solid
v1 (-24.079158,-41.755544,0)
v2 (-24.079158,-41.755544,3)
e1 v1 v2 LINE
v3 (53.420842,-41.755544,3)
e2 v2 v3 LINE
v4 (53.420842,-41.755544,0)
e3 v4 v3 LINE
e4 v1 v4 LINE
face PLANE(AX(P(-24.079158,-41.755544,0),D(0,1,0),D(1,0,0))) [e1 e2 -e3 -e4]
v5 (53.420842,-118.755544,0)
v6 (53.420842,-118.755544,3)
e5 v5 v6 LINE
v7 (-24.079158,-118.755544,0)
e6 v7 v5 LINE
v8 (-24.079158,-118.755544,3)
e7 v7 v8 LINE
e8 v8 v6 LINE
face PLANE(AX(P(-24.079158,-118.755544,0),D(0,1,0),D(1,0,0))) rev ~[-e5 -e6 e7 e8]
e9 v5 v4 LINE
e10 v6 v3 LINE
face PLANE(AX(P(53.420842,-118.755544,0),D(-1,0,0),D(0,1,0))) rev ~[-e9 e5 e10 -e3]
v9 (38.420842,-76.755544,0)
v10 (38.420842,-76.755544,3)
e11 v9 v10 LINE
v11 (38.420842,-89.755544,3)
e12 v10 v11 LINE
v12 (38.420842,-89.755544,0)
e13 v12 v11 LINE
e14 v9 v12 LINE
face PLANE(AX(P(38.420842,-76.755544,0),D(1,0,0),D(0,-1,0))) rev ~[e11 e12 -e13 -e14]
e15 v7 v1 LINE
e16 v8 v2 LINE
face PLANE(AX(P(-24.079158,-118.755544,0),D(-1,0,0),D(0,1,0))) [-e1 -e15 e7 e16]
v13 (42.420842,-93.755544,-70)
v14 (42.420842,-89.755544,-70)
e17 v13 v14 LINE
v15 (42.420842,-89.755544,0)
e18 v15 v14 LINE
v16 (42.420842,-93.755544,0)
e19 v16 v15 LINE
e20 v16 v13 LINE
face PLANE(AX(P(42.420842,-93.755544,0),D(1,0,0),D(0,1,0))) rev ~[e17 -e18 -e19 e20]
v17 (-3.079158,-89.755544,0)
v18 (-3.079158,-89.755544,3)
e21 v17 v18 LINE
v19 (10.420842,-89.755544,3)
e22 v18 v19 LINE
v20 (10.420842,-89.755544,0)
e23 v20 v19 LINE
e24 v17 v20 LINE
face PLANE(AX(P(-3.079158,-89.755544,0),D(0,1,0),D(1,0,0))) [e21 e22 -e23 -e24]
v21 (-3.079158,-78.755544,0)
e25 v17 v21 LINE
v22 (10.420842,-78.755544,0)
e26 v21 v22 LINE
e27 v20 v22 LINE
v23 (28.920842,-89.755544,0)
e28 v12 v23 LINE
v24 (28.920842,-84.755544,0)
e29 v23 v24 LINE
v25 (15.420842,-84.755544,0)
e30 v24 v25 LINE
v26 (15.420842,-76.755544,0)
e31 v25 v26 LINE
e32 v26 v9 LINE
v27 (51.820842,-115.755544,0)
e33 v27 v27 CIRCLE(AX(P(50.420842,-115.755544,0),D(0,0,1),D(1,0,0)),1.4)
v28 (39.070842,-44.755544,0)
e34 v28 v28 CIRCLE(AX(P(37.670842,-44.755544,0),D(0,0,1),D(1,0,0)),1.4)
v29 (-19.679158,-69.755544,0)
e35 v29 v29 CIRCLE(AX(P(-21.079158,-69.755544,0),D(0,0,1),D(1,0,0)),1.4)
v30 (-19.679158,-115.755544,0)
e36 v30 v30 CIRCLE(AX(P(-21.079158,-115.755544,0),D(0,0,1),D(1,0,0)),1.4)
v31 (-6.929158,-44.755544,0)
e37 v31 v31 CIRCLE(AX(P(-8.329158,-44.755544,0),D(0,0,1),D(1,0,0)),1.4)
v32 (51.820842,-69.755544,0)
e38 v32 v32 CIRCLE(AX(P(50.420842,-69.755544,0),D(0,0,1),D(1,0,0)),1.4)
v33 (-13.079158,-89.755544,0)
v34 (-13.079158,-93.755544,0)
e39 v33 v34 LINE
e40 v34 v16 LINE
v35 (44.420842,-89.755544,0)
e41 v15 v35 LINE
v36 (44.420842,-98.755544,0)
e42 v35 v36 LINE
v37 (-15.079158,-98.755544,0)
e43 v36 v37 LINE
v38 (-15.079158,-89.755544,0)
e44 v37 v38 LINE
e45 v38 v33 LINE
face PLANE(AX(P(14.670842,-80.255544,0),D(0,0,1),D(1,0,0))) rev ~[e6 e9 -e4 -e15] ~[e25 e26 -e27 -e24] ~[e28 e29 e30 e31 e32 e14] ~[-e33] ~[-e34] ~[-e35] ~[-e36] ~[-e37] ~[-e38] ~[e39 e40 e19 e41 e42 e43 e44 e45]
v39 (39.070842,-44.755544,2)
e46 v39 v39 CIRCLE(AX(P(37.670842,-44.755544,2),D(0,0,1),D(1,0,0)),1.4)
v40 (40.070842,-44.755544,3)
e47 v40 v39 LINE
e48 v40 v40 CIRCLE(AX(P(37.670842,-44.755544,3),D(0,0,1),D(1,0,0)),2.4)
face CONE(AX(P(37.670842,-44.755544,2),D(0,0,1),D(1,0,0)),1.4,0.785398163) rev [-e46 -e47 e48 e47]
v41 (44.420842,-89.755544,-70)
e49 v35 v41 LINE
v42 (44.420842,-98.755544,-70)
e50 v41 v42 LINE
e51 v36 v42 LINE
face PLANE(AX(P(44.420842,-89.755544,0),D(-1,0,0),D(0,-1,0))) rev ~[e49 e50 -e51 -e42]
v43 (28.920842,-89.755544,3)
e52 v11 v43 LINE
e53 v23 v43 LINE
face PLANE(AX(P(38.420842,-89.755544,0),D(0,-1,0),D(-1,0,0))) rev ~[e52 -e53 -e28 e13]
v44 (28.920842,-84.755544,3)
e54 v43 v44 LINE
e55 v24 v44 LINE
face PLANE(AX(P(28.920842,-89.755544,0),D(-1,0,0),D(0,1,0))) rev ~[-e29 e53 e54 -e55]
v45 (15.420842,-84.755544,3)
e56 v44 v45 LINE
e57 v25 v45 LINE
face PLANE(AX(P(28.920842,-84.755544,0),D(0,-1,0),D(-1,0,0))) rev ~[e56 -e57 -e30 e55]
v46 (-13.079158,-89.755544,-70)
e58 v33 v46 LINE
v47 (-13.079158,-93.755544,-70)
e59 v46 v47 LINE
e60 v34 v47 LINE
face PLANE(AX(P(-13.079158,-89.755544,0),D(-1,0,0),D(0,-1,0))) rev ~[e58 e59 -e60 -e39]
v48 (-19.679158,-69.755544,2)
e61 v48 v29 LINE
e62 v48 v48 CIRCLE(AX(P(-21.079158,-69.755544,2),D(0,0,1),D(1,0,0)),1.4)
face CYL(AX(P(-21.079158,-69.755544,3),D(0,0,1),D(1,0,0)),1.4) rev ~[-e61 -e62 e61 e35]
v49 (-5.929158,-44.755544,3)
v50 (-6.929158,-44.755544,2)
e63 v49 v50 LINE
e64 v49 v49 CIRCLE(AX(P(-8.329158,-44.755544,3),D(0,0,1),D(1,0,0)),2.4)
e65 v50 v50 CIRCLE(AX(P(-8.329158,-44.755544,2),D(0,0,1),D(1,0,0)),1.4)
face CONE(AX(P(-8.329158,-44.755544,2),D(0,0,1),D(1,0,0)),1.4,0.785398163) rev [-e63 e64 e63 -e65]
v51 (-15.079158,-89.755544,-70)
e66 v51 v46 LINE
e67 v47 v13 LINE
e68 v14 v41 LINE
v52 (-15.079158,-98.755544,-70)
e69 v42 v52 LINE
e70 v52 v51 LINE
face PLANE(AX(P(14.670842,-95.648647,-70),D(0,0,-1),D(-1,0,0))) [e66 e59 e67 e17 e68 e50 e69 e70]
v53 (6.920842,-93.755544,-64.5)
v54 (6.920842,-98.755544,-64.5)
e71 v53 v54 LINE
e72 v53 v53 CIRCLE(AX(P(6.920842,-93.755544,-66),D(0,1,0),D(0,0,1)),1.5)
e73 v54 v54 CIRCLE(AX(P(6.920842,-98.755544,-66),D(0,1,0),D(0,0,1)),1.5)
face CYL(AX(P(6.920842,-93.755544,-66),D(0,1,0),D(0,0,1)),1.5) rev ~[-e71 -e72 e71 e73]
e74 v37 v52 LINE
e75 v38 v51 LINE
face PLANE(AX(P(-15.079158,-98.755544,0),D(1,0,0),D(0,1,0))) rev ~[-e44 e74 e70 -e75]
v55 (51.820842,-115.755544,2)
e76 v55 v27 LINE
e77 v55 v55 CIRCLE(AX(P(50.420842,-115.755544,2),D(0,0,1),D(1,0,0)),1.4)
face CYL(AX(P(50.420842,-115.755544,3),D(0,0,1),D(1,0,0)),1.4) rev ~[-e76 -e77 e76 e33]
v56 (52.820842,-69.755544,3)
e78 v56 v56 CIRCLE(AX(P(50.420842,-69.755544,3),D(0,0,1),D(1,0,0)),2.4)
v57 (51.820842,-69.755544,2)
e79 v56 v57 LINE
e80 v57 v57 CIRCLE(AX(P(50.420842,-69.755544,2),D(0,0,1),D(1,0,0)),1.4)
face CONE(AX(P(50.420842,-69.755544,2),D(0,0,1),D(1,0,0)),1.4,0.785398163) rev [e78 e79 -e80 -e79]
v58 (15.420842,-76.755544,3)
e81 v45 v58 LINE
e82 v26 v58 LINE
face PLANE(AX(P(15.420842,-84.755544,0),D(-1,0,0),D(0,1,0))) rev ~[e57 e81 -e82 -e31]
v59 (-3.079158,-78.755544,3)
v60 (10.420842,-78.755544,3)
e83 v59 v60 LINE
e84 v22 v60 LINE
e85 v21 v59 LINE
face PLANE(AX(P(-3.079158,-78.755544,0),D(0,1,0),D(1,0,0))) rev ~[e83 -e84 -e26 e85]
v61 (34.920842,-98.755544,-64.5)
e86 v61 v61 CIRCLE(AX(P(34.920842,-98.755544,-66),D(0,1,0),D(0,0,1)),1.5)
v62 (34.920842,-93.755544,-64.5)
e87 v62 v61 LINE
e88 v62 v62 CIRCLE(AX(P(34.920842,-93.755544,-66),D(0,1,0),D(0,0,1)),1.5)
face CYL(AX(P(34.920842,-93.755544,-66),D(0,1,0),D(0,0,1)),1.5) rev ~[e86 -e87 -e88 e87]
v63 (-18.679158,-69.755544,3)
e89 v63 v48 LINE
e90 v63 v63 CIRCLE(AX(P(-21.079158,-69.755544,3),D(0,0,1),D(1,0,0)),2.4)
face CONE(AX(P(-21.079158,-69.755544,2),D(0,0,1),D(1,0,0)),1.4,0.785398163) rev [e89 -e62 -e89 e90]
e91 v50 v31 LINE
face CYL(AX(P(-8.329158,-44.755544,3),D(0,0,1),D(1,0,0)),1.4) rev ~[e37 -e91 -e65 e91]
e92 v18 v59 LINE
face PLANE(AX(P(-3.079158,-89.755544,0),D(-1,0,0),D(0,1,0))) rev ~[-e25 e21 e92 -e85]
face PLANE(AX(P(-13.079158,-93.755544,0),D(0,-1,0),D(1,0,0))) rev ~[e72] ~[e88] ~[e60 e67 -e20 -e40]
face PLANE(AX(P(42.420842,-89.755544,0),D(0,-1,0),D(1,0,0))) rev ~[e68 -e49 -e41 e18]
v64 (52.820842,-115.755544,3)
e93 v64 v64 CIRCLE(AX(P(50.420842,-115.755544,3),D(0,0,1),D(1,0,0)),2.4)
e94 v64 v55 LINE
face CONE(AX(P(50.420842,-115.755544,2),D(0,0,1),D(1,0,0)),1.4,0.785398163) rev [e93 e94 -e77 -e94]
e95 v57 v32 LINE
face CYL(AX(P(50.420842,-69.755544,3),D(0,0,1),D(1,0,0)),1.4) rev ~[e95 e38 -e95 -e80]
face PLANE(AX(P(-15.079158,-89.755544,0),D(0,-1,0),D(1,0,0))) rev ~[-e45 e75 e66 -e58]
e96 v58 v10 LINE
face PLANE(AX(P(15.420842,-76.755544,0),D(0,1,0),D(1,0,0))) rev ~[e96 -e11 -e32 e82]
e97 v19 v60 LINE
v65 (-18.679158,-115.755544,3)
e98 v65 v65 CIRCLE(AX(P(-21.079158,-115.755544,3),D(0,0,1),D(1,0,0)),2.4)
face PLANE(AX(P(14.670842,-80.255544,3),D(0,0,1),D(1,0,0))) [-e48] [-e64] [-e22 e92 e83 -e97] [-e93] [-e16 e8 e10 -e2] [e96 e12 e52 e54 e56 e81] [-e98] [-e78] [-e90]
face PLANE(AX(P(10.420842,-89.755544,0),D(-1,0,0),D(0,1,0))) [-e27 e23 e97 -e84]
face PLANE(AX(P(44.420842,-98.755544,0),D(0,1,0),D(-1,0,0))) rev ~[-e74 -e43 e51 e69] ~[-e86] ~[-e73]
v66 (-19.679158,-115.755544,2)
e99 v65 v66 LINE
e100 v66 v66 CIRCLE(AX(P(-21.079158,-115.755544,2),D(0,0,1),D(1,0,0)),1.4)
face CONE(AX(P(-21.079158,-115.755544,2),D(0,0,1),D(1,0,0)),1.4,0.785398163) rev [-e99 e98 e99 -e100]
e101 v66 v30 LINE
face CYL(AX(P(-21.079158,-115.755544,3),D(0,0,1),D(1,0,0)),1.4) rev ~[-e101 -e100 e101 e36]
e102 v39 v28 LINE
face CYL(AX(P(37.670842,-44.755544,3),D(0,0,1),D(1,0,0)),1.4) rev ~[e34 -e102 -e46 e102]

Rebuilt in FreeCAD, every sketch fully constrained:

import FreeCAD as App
import Part
import Sketcher
from FreeCAD import Vector
Q = App.Units.Quantity


def edges_at(feature, points):
    """Names of the edges that pass closest to the given points."""
    edges = feature.Shape.Edges
    near = lambda p: min(range(len(edges)), key=lambda i: edges[i].distToShape(Part.Vertex(*p))[0])
    return sorted({f"Edge{near(p) + 1}" for p in points})

doc = App.newDocument("Part")
params = doc.addObject("Spreadsheet::Sheet", "Params")
for row, (alias, value) in enumerate([
    ("sketch1_width", "23 mm"),
    ("sketch1_height", "77 mm"),
    ("sketch1_height2", "11 mm"),
    ("sketch1_height3", "8 mm"),
    ("sketch1_height4", "13 mm"),
    ("pad1_length", "3 mm"),
    ("sketch2_width", "2 mm"),
    ("sketch2_height", "4 mm"),
    ("sketch2_height2", "9 mm"),
    ("sketch2_width2", "55.5 mm"),
    ("pad2_length", "70 mm"),
    ("sketch3_diameter", "2.8 mm"),
    ("pocket1_length", "3 mm"),
    ("sketch4_diameter", "2.8 mm"),
    ("pocket2_length", "3 mm"),
    ("sketch5_diameter", "3 mm"),
    ("pocket3_length", "5 mm"),
    ("chamfer_size", "1 mm"),
    ("chamfer2_size", "1 mm"),
    ("chamfer3_size", "1 mm"),
], start=1):
    params.set(f"A{row}", alias)
    params.set(f"B{row}", "=" + value)
    params.setAlias(f"B{row}", alias)

body = doc.addObject("PartDesign::Body", "Body")

sketch1 = body.newObject("Sketcher::SketchObject", "Sketch")
sketch1.AttachmentSupport = (doc.getObject("XY_Plane"), [""])
sketch1.MapMode = "FlatFace"
sketch1.addGeometry(Part.LineSegment(Vector(-24, -42, 0), Vector(-24, -119, 0)), False)
sketch1.addGeometry(Part.LineSegment(Vector(-24, -119, 0), Vector(53, -119, 0)), False)
sketch1.addGeometry(Part.LineSegment(Vector(53, -119, 0), Vector(53, -42, 0)), False)
sketch1.addGeometry(Part.LineSegment(Vector(53, -42, 0), Vector(-24, -42, 0)), False)
sketch1.addGeometry(Part.LineSegment(Vector(10, -90, 0), Vector(-3, -90, 0)), False)
sketch1.addGeometry(Part.LineSegment(Vector(-3, -90, 0), Vector(-3, -79, 0)), False)
sketch1.addGeometry(Part.LineSegment(Vector(-3, -79, 0), Vector(10, -79, 0)), False)
sketch1.addGeometry(Part.LineSegment(Vector(10, -79, 0), Vector(10, -90, 0)), False)
sketch1.addGeometry(Part.LineSegment(Vector(15, -85, 0), Vector(15, -77, 0)), False)
sketch1.addGeometry(Part.LineSegment(Vector(15, -77, 0), Vector(38, -77, 0)), False)
sketch1.addGeometry(Part.LineSegment(Vector(38, -77, 0), Vector(38, -90, 0)), False)
sketch1.addGeometry(Part.LineSegment(Vector(38, -90, 0), Vector(29, -90, 0)), False)
sketch1.addGeometry(Part.LineSegment(Vector(29, -90, 0), Vector(29, -85, 0)), False)
sketch1.addGeometry(Part.LineSegment(Vector(29, -85, 0), Vector(15, -85, 0)), False)
sketch1.addConstraint(Sketcher.Constraint("Coincident", 0, 2, 1, 1))
sketch1.addConstraint(Sketcher.Constraint("Coincident", 1, 2, 2, 1))
sketch1.addConstraint(Sketcher.Constraint("Coincident", 2, 2, 3, 1))
sketch1.addConstraint(Sketcher.Constraint("Coincident", 3, 2, 0, 1))
sketch1.addConstraint(Sketcher.Constraint("Coincident", 4, 2, 5, 1))
sketch1.addConstraint(Sketcher.Constraint("Coincident", 5, 2, 6, 1))
sketch1.addConstraint(Sketcher.Constraint("Coincident", 6, 2, 7, 1))
sketch1.addConstraint(Sketcher.Constraint("Coincident", 7, 2, 4, 1))
sketch1.addConstraint(Sketcher.Constraint("Coincident", 8, 2, 9, 1))
sketch1.addConstraint(Sketcher.Constraint("Coincident", 9, 2, 10, 1))
sketch1.addConstraint(Sketcher.Constraint("Coincident", 10, 2, 11, 1))
sketch1.addConstraint(Sketcher.Constraint("Coincident", 11, 2, 12, 1))
sketch1.addConstraint(Sketcher.Constraint("Coincident", 12, 2, 13, 1))
sketch1.addConstraint(Sketcher.Constraint("Coincident", 13, 2, 8, 1))
sketch1.addConstraint(Sketcher.Constraint("Vertical", 0))
sketch1.addConstraint(Sketcher.Constraint("Horizontal", 1))
sketch1.addConstraint(Sketcher.Constraint("Vertical", 2))
sketch1.addConstraint(Sketcher.Constraint("Horizontal", 3))
sketch1.addConstraint(Sketcher.Constraint("Horizontal", 4))
sketch1.addConstraint(Sketcher.Constraint("Vertical", 5))
sketch1.addConstraint(Sketcher.Constraint("Horizontal", 6))
sketch1.addConstraint(Sketcher.Constraint("Vertical", 7))
sketch1.addConstraint(Sketcher.Constraint("Vertical", 8))
sketch1.addConstraint(Sketcher.Constraint("Horizontal", 9))
sketch1.addConstraint(Sketcher.Constraint("Vertical", 10))
sketch1.addConstraint(Sketcher.Constraint("Horizontal", 11))
sketch1.addConstraint(Sketcher.Constraint("Vertical", 12))
sketch1.addConstraint(Sketcher.Constraint("Horizontal", 13))
sketch1.addConstraint(Sketcher.Constraint("Horizontal", 7, 2, 10, 2))
sketch1.addConstraint(Sketcher.Constraint("Equal", 6, 13))
sketch1.addConstraint(Sketcher.Constraint("DistanceX", 9, 1, 9, 2, Q("23 mm")))
sketch1.addConstraint(Sketcher.Constraint("DistanceY", 0, 2, 0, 1, Q("77 mm")))
sketch1.addConstraint(Sketcher.Constraint("DistanceY", 5, 1, 5, 2, Q("11 mm")))
sketch1.addConstraint(Sketcher.Constraint("DistanceY", 8, 1, 8, 2, Q("8 mm")))
sketch1.addConstraint(Sketcher.Constraint("DistanceY", 10, 2, 10, 1, Q("13 mm")))
sketch1.addConstraint(Sketcher.Constraint("DistanceX", 1, 1, 1, 2, Q("77.5 mm")))
sketch1.addConstraint(Sketcher.Constraint("DistanceX", 4, 2, 4, 1, Q("13.5 mm")))
sketch1.addConstraint(Sketcher.Constraint("DistanceX", 0, 2, 4, 2, Q("21 mm")))
sketch1.addConstraint(Sketcher.Constraint("DistanceY", 0, 2, 4, 2, Q("29 mm")))
sketch1.addConstraint(Sketcher.Constraint("DistanceX", 6, 2, 8, 2, Q("5 mm")))
sketch1.addConstraint(Sketcher.Constraint("DistanceX", 0, 2, -1, 1, Q("24.079158 mm")))
sketch1.addConstraint(Sketcher.Constraint("DistanceY", 0, 2, -1, 1, Q("118.755544 mm")))
sketch1.setExpression("Constraints[30]", "Params.sketch1_width")
sketch1.setExpression("Constraints[31]", "Params.sketch1_height")
sketch1.setExpression("Constraints[32]", "Params.sketch1_height2")
sketch1.setExpression("Constraints[33]", "Params.sketch1_height3")
sketch1.setExpression("Constraints[34]", "Params.sketch1_height4")
pad1 = body.newObject("PartDesign::Pad", "Pad")
pad1.Profile = sketch1
pad1.setExpression("Length", "Params.pad1_length")

sketch2 = body.newObject("Sketcher::SketchObject", "Sketch001")
sketch2.AttachmentSupport = (doc.getObject("XY_Plane"), [""])
sketch2.MapMode = "FlatFace"
sketch2.addGeometry(Part.LineSegment(Vector(44.4, -89.8, 0), Vector(42.4, -89.8, 0)), False)
sketch2.addGeometry(Part.LineSegment(Vector(42.4, -89.8, 0), Vector(42.4, -93.8, 0)), False)
sketch2.addGeometry(Part.LineSegment(Vector(42.4, -93.8, 0), Vector(-13.1, -93.8, 0)), False)
sketch2.addGeometry(Part.LineSegment(Vector(-13.1, -93.8, 0), Vector(-13.1, -89.8, 0)), False)
sketch2.addGeometry(Part.LineSegment(Vector(-13.1, -89.8, 0), Vector(-15.1, -89.8, 0)), False)
sketch2.addGeometry(Part.LineSegment(Vector(-15.1, -89.8, 0), Vector(-15.1, -98.8, 0)), False)
sketch2.addGeometry(Part.LineSegment(Vector(-15.1, -98.8, 0), Vector(44.4, -98.8, 0)), False)
sketch2.addGeometry(Part.LineSegment(Vector(44.4, -98.8, 0), Vector(44.4, -89.8, 0)), False)
sketch2.addConstraint(Sketcher.Constraint("Coincident", 0, 2, 1, 1))
sketch2.addConstraint(Sketcher.Constraint("Coincident", 1, 2, 2, 1))
sketch2.addConstraint(Sketcher.Constraint("Coincident", 2, 2, 3, 1))
sketch2.addConstraint(Sketcher.Constraint("Coincident", 3, 2, 4, 1))
sketch2.addConstraint(Sketcher.Constraint("Coincident", 4, 2, 5, 1))
sketch2.addConstraint(Sketcher.Constraint("Coincident", 5, 2, 6, 1))
sketch2.addConstraint(Sketcher.Constraint("Coincident", 6, 2, 7, 1))
sketch2.addConstraint(Sketcher.Constraint("Coincident", 7, 2, 0, 1))
sketch2.addConstraint(Sketcher.Constraint("Horizontal", 0))
sketch2.addConstraint(Sketcher.Constraint("Vertical", 1))
sketch2.addConstraint(Sketcher.Constraint("Horizontal", 2))
sketch2.addConstraint(Sketcher.Constraint("Vertical", 3))
sketch2.addConstraint(Sketcher.Constraint("Horizontal", 4))
sketch2.addConstraint(Sketcher.Constraint("Vertical", 5))
sketch2.addConstraint(Sketcher.Constraint("Horizontal", 6))
sketch2.addConstraint(Sketcher.Constraint("Vertical", 7))
sketch2.addConstraint(Sketcher.Constraint("Horizontal", 0, 2, 3, 2))
sketch2.addConstraint(Sketcher.Constraint("Equal", 0, 4))
sketch2.addConstraint(Sketcher.Constraint("DistanceX", 0, 2, 0, 1, Q("2 mm")))
sketch2.addConstraint(Sketcher.Constraint("DistanceY", 1, 2, 1, 1, Q("4 mm")))
sketch2.addConstraint(Sketcher.Constraint("DistanceY", 5, 2, 5, 1, Q("9 mm")))
sketch2.addConstraint(Sketcher.Constraint("DistanceX", 2, 2, 2, 1, Q("55.5 mm")))
sketch2.addConstraint(Sketcher.Constraint("DistanceX", -1, 1, 0, 2, Q("42.420842 mm")))
sketch2.addConstraint(Sketcher.Constraint("DistanceY", 0, 2, -1, 1, Q("89.755544 mm")))
sketch2.setExpression("Constraints[18]", "Params.sketch2_width")
sketch2.setExpression("Constraints[19]", "Params.sketch2_height")
sketch2.setExpression("Constraints[20]", "Params.sketch2_height2")
sketch2.setExpression("Constraints[21]", "Params.sketch2_width2")
pad2 = body.newObject("PartDesign::Pad", "Pad001")
pad2.Profile = sketch2
pad2.setExpression("Length", "Params.pad2_length")
pad2.Reversed = True

sketch3 = body.newObject("Sketcher::SketchObject", "Sketch002")
sketch3.AttachmentSupport = (doc.getObject("XY_Plane"), [""])
sketch3.MapMode = "FlatFace"
sketch3.AttachmentOffset = App.Placement(Vector(0, 0, 3), App.Rotation())
sketch3.addGeometry(Part.Circle(Vector(-8.3, -44.8, 0), Vector(0, 0, 1), 1.4), False)
sketch3.addGeometry(Part.Circle(Vector(37.7, -44.8, 0), Vector(0, 0, 1), 1.4), False)
sketch3.addConstraint(Sketcher.Constraint("Equal", 0, 1))
sketch3.addConstraint(Sketcher.Constraint("Horizontal", 0, 3, 1, 3))
sketch3.addConstraint(Sketcher.Constraint("Diameter", 0, Q("2.8 mm")))
sketch3.addConstraint(Sketcher.Constraint("DistanceX", 0, 3, 1, 3, Q("46 mm")))
sketch3.addConstraint(Sketcher.Constraint("DistanceX", 0, 3, -1, 1, Q("8.329158 mm")))
sketch3.addConstraint(Sketcher.Constraint("DistanceY", 0, 3, -1, 1, Q("44.755544 mm")))
sketch3.setExpression("Constraints[2]", "Params.sketch3_diameter")
pocket1 = body.newObject("PartDesign::Pocket", "Pocket")
pocket1.Profile = sketch3
pocket1.setExpression("Length", "Params.pocket1_length")

sketch4 = body.newObject("Sketcher::SketchObject", "Sketch003")
sketch4.AttachmentSupport = (doc.getObject("XY_Plane"), [""])
sketch4.MapMode = "FlatFace"
sketch4.AttachmentOffset = App.Placement(Vector(0, 0, 3), App.Rotation())
sketch4.addGeometry(Part.Circle(Vector(-21.1, -69.8, 0), Vector(0, 0, 1), 1.4), False)
sketch4.addGeometry(Part.Circle(Vector(-21.1, -115.8, 0), Vector(0, 0, 1), 1.4), False)
sketch4.addGeometry(Part.Circle(Vector(50.4, -115.8, 0), Vector(0, 0, 1), 1.4), False)
sketch4.addGeometry(Part.Circle(Vector(50.4, -69.8, 0), Vector(0, 0, 1), 1.4), False)
sketch4.addConstraint(Sketcher.Constraint("Equal", 0, 1))
sketch4.addConstraint(Sketcher.Constraint("Equal", 1, 2))
sketch4.addConstraint(Sketcher.Constraint("Equal", 2, 3))
sketch4.addConstraint(Sketcher.Constraint("Horizontal", 1, 3, 2, 3))
sketch4.addConstraint(Sketcher.Constraint("Horizontal", 0, 3, 3, 3))
sketch4.addConstraint(Sketcher.Constraint("Vertical", 0, 3, 1, 3))
sketch4.addConstraint(Sketcher.Constraint("Vertical", 2, 3, 3, 3))
sketch4.addConstraint(Sketcher.Constraint("Diameter", 0, Q("2.8 mm")))
sketch4.addConstraint(Sketcher.Constraint("DistanceY", 1, 3, 0, 3, Q("46 mm")))
sketch4.addConstraint(Sketcher.Constraint("DistanceX", 1, 3, 2, 3, Q("71.5 mm")))
sketch4.addConstraint(Sketcher.Constraint("DistanceX", 0, 3, -1, 1, Q("21.079158 mm")))
sketch4.addConstraint(Sketcher.Constraint("DistanceY", 0, 3, -1, 1, Q("69.755544 mm")))
sketch4.setExpression("Constraints[7]", "Params.sketch4_diameter")
pocket2 = body.newObject("PartDesign::Pocket", "Pocket001")
pocket2.Profile = sketch4
pocket2.setExpression("Length", "Params.pocket2_length")

sketch5 = body.newObject("Sketcher::SketchObject", "Sketch004")
sketch5.AttachmentSupport = (doc.getObject("XZ_Plane"), [""])
sketch5.MapMode = "FlatFace"
sketch5.AttachmentOffset = App.Placement(Vector(0, 0, 93.755544), App.Rotation())
sketch5.addGeometry(Part.Circle(Vector(34.9, -66, 0), Vector(0, 0, 1), 1.5), False)
sketch5.addGeometry(Part.Circle(Vector(6.9, -66, 0), Vector(0, 0, 1), 1.5), False)
sketch5.addConstraint(Sketcher.Constraint("Equal", 0, 1))
sketch5.addConstraint(Sketcher.Constraint("Horizontal", 0, 3, 1, 3))
sketch5.addConstraint(Sketcher.Constraint("Diameter", 0, Q("3 mm")))
sketch5.addConstraint(Sketcher.Constraint("DistanceY", 0, 3, -1, 1, Q("66 mm")))
sketch5.addConstraint(Sketcher.Constraint("DistanceX", 1, 3, 0, 3, Q("28 mm")))
sketch5.addConstraint(Sketcher.Constraint("DistanceX", -1, 1, 0, 3, Q("34.920842 mm")))
sketch5.setExpression("Constraints[2]", "Params.sketch5_diameter")
pocket3 = body.newObject("PartDesign::Pocket", "Pocket002")
pocket3.Profile = sketch5
pocket3.setExpression("Length", "Params.pocket3_length")
pocket3.Reversed = True
doc.recompute()

chamfer = body.newObject("PartDesign::Chamfer", "Chamfer")
chamfer.Base = (pocket3, edges_at(pocket3, [(-9.729, -44.756, 3)]))
chamfer.setExpression("Size", "Params.chamfer_size")
doc.recompute()

chamfer2 = body.newObject("PartDesign::Chamfer", "Chamfer001")
chamfer2.Base = (chamfer, edges_at(chamfer, [(36.271, -44.756, 3)]))
chamfer2.setExpression("Size", "Params.chamfer2_size")
doc.recompute()

chamfer3 = body.newObject("PartDesign::Chamfer", "Chamfer002")
chamfer3.Base = (chamfer2, edges_at(chamfer2, [
    (49.021, -69.756, 3),
    (49.021, -115.756, 3),
    (-22.479, -115.756, 3),
    (-22.479, -69.756, 3),
]))
chamfer3.setExpression("Size", "Params.chamfer3_size")

doc.recompute()
